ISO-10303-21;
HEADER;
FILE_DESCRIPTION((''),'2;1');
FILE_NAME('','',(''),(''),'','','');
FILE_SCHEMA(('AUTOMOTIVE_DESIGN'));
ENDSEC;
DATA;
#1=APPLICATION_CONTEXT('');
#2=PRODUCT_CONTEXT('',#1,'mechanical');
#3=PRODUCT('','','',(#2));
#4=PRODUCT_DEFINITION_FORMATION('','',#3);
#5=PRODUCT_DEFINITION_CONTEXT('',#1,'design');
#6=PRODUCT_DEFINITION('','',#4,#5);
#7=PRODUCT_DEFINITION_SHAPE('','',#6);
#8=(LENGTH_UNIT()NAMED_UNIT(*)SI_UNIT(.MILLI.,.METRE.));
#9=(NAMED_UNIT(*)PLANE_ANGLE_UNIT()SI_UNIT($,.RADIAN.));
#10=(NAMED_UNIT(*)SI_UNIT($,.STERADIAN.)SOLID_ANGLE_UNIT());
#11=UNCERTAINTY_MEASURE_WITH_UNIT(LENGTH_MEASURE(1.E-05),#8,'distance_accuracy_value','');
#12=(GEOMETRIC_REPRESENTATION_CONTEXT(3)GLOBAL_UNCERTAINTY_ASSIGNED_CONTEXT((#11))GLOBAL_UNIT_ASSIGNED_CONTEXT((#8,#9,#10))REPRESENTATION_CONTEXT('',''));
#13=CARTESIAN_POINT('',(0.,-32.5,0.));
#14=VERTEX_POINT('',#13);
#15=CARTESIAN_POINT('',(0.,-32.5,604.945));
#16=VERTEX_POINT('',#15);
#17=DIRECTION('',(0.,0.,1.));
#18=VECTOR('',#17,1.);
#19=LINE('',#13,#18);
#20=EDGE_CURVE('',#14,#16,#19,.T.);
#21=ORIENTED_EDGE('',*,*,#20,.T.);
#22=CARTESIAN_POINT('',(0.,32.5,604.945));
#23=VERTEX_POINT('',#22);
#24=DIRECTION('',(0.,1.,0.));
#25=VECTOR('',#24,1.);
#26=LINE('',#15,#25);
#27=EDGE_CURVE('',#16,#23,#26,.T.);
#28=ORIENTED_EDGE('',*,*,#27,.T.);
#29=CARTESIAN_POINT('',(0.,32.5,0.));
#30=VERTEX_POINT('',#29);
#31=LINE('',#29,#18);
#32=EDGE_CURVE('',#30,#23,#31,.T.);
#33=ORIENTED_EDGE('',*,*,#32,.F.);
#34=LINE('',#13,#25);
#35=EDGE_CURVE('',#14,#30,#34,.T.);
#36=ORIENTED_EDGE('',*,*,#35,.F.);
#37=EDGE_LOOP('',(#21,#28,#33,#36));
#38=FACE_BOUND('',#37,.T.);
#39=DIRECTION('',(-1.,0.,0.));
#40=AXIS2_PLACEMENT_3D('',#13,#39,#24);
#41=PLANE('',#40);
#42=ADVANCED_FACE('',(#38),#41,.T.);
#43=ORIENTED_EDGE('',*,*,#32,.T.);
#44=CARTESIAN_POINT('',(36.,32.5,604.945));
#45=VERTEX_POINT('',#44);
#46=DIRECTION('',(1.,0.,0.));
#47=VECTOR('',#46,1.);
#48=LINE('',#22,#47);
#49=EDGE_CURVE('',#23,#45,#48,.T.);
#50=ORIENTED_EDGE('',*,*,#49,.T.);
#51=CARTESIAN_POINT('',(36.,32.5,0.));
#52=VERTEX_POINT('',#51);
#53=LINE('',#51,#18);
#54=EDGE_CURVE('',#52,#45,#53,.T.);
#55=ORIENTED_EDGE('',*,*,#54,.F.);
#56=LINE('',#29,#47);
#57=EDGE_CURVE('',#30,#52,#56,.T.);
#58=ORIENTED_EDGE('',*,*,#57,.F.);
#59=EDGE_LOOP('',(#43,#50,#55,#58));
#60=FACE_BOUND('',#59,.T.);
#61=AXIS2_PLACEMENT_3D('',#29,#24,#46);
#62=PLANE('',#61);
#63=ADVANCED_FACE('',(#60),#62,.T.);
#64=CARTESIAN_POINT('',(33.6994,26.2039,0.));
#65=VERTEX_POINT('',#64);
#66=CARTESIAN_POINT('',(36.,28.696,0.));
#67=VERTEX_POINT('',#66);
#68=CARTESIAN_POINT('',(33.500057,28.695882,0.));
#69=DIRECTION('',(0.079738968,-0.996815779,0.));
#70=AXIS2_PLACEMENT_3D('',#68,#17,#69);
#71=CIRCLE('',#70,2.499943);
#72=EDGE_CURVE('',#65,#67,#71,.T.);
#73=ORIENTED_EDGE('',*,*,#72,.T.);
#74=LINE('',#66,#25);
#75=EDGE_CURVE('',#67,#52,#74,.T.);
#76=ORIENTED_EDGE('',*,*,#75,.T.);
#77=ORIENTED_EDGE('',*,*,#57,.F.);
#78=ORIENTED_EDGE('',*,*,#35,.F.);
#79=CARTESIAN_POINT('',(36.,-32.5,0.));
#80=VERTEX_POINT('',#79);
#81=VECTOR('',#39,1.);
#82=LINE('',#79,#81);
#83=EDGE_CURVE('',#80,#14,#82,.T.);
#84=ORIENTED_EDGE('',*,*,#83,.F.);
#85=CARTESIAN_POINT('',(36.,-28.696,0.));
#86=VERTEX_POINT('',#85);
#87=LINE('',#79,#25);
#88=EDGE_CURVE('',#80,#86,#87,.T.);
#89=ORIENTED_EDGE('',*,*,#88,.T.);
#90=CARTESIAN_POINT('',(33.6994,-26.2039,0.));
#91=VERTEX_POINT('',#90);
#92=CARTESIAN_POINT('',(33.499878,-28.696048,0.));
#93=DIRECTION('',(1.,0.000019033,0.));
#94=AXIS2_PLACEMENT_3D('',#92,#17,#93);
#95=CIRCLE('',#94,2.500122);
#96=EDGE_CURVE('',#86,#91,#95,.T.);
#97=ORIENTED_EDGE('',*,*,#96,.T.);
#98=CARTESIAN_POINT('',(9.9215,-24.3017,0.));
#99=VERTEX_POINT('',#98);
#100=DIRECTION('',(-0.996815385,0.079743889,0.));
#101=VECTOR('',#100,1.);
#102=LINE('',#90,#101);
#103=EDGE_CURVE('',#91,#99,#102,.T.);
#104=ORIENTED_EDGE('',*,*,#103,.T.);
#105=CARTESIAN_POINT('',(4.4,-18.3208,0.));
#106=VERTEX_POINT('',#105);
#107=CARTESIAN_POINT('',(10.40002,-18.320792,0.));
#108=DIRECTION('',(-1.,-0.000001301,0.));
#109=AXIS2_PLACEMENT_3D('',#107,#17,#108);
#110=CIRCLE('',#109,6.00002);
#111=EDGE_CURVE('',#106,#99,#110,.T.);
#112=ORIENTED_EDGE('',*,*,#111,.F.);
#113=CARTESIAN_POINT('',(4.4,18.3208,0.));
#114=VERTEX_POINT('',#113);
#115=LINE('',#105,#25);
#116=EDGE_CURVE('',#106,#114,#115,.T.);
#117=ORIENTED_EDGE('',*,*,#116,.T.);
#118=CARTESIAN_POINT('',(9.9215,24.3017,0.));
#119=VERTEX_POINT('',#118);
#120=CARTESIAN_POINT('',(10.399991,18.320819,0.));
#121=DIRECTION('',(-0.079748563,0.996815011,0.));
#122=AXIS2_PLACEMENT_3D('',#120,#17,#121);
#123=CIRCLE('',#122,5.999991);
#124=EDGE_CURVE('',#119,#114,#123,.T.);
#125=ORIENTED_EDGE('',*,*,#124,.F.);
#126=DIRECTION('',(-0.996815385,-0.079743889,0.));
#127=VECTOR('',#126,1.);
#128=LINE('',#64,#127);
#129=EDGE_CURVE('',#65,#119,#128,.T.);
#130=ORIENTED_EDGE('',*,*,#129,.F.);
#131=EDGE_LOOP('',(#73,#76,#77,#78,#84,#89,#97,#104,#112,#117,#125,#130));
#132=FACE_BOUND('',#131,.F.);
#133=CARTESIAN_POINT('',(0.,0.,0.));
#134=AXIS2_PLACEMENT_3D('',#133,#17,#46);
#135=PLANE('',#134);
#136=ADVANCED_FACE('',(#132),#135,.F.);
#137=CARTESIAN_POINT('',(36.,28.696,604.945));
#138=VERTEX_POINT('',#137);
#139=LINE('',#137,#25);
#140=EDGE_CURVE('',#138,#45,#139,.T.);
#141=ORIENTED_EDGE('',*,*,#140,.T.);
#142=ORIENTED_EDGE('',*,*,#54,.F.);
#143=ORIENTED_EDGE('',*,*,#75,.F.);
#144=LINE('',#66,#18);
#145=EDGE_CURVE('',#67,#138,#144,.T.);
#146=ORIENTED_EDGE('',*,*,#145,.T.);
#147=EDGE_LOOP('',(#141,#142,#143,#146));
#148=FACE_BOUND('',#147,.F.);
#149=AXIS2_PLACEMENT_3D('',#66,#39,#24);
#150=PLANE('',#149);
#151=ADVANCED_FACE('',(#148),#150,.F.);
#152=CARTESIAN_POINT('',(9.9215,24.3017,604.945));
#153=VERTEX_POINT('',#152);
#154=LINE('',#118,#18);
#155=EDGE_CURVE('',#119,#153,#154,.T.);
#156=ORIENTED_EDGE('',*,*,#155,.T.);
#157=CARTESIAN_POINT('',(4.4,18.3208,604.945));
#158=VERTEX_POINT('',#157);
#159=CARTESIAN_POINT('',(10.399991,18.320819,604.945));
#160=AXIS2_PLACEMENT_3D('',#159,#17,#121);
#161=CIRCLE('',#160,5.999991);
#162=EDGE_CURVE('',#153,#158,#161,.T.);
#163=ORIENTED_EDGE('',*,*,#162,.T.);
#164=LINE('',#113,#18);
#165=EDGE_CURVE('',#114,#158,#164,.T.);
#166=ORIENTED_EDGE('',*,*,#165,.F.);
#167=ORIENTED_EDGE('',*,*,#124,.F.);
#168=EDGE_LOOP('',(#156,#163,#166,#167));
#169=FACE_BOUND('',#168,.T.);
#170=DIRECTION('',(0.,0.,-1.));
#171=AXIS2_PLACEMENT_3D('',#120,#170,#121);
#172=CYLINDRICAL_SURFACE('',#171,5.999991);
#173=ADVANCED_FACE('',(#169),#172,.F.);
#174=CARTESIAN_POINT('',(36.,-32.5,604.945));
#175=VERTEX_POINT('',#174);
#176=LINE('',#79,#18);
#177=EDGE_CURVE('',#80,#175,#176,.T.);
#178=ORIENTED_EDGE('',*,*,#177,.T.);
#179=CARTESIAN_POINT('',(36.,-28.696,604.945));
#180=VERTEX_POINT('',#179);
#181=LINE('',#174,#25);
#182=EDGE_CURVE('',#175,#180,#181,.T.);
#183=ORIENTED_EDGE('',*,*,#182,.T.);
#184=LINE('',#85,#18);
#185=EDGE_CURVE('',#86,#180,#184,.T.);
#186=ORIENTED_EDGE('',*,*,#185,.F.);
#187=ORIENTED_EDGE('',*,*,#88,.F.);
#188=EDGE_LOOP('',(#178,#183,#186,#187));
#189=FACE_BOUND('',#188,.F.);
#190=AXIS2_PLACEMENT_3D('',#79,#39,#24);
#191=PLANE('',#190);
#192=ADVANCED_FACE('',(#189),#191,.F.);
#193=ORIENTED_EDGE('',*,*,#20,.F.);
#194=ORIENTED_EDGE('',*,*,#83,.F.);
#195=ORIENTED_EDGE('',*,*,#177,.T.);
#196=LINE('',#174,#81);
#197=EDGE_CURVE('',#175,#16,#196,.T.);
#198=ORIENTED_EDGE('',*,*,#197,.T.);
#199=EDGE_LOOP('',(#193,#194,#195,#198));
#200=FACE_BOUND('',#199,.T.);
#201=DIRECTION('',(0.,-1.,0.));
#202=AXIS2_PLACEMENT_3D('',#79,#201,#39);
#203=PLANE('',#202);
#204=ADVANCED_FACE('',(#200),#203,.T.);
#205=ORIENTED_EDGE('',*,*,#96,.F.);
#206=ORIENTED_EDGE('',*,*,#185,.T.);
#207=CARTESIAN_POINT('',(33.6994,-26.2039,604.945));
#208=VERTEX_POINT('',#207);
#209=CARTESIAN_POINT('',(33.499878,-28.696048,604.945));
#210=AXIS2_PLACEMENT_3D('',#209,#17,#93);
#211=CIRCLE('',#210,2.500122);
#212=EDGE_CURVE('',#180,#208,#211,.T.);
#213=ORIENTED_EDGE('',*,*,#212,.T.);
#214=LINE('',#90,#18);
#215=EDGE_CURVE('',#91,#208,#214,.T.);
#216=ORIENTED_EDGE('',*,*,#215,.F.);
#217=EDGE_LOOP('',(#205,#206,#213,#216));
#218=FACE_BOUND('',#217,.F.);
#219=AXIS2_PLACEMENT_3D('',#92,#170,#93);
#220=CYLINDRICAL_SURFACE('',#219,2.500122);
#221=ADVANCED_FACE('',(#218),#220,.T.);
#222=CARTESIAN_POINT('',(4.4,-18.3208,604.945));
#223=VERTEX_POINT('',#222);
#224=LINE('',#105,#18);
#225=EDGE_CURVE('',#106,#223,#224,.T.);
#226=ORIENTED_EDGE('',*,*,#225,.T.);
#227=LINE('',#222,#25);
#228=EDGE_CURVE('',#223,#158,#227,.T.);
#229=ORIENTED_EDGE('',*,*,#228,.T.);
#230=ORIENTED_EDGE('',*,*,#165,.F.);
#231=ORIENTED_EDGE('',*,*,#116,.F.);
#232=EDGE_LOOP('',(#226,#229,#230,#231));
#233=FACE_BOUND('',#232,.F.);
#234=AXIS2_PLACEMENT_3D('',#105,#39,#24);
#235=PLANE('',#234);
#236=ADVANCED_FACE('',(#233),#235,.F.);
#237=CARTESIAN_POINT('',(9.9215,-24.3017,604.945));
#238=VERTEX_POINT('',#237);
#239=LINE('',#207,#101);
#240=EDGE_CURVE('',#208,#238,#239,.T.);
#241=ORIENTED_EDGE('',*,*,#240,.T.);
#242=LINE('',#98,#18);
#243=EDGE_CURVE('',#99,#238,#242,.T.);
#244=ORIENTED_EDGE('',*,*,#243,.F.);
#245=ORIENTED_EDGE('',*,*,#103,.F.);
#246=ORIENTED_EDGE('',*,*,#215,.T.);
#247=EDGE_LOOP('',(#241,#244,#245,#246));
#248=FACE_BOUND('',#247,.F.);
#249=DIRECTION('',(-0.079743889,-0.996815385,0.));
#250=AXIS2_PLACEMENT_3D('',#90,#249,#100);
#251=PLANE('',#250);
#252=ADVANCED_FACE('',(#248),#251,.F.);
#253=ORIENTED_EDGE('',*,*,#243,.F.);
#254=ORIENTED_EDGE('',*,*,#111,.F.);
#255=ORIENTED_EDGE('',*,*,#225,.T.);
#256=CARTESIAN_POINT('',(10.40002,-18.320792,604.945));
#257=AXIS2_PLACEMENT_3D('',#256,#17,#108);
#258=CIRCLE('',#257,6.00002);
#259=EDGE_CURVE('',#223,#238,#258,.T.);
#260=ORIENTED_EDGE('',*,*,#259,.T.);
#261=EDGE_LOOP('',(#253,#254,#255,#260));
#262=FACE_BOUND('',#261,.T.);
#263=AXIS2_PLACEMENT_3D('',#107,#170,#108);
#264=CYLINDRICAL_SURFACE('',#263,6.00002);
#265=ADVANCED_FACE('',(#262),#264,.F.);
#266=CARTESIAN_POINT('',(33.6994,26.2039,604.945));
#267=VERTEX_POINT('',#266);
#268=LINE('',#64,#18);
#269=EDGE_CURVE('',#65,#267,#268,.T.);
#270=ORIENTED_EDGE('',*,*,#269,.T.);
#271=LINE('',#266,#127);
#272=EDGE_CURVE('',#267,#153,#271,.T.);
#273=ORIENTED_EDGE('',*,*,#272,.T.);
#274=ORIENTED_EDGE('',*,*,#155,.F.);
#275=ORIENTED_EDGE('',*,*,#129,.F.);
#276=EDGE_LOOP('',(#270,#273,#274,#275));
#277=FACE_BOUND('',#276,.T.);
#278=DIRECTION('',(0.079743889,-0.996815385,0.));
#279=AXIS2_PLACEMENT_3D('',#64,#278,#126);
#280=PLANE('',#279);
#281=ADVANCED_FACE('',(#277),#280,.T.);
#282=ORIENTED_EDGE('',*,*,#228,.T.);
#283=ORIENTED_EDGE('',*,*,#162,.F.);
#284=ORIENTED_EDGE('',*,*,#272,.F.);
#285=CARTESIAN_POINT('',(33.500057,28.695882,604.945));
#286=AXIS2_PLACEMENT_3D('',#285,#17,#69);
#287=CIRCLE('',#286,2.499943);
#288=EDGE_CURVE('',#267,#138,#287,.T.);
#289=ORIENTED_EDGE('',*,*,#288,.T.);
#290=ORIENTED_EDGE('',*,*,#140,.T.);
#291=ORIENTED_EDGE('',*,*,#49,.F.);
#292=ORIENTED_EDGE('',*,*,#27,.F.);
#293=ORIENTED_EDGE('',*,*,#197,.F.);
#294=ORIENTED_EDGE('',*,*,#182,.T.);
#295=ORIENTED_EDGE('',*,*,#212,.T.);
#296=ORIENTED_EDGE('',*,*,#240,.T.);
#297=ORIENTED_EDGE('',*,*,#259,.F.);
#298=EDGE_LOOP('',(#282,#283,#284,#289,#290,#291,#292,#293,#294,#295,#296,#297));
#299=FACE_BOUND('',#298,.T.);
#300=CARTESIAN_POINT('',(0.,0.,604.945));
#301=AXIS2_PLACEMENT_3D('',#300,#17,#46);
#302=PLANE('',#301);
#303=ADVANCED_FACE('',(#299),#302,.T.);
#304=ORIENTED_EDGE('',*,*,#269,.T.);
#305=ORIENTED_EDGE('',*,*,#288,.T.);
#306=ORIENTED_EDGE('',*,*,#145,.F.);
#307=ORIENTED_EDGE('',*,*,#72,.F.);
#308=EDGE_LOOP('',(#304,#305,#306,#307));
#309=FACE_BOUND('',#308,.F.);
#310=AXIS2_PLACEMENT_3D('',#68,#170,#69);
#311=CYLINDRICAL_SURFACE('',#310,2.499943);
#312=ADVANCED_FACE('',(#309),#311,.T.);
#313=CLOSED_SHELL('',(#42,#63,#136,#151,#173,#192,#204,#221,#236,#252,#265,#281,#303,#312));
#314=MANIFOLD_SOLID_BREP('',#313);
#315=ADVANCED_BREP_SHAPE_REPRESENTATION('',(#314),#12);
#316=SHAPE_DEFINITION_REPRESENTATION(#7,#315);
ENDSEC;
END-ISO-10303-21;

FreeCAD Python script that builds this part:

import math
import FreeCAD as App
import Part
import Sketcher

doc = App.newDocument("Part")
body = doc.addObject("PartDesign::Body", "Body")

# Sketch on XY plane
sketch1 = doc.addObject("Sketcher::SketchObject", "Sketch")
body.addObject(sketch1)
sketch1.AttachmentSupport = (doc.XY_Plane, [""])
sketch1.MapMode = "FlatFace"
sketch1.addGeometry(Part.LineSegment(App.Vector(0, -32.5, 0), App.Vector(36, -32.5, 0)), False)
sketch1.addGeometry(Part.LineSegment(App.Vector(36, -32.5, 0), App.Vector(36, -28.696, 0)), False)
sketch1.addGeometry(Part.ArcOfCircle(Part.Circle(App.Vector(33.5, -28.696, 0), App.Vector(0, 0, 1), 2.5), math.radians(0), math.radians(85.425348)), False)
sketch1.addGeometry(Part.LineSegment(App.Vector(33.6994, -26.2039, 0), App.Vector(9.9215, -24.3017, 0)), False)
sketch1.addGeometry(Part.ArcOfCircle(Part.Circle(App.Vector(10.4, -18.3208, 0), App.Vector(0, 0, 1), 6), math.radians(180), math.radians(265.425812)), False)
sketch1.addGeometry(Part.LineSegment(App.Vector(4.4, -18.3208, 0), App.Vector(4.4, 18.3208, 0)), False)
sketch1.addGeometry(Part.ArcOfCircle(Part.Circle(App.Vector(10.4, 18.3208, 0), App.Vector(0, 0, 1), 6.000011), math.radians(94.574188), math.radians(180)), False)
sketch1.addGeometry(Part.LineSegment(App.Vector(9.9215, 24.3017, 0), App.Vector(33.6994, 26.2039, 0)), False)
sketch1.addGeometry(Part.ArcOfCircle(Part.Circle(App.Vector(33.5, 28.696, 0), App.Vector(0, 0, 1), 2.500065), math.radians(-85.425348), math.radians(0)), False)
sketch1.addGeometry(Part.LineSegment(App.Vector(36, 28.696, 0), App.Vector(36, 32.5, 0)), False)
sketch1.addGeometry(Part.LineSegment(App.Vector(36, 32.5, 0), App.Vector(0, 32.5, 0)), False)
sketch1.addGeometry(Part.LineSegment(App.Vector(0, 32.5, 0), App.Vector(0, -32.5, 0)), False)
sketch1.addConstraint(Sketcher.Constraint("Coincident", 0, 2, 1, 1))
sketch1.addConstraint(Sketcher.Constraint("Tangent", 1, 2, 2, 1))
sketch1.addConstraint(Sketcher.Constraint("Tangent", 2, 2, 3, 1))
sketch1.addConstraint(Sketcher.Constraint("Tangent", 3, 2, 4, 2))
sketch1.addConstraint(Sketcher.Constraint("Tangent", 4, 1, 5, 1))
sketch1.addConstraint(Sketcher.Constraint("Tangent", 5, 2, 6, 2))
sketch1.addConstraint(Sketcher.Constraint("Tangent", 6, 1, 7, 1))
sketch1.addConstraint(Sketcher.Constraint("Tangent", 7, 2, 8, 1))
sketch1.addConstraint(Sketcher.Constraint("Tangent", 8, 2, 9, 1))
sketch1.addConstraint(Sketcher.Constraint("Coincident", 9, 2, 10, 1))
sketch1.addConstraint(Sketcher.Constraint("Coincident", 10, 2, 11, 1))
sketch1.addConstraint(Sketcher.Constraint("Coincident", 11, 2, 0, 1))
sketch1.addConstraint(Sketcher.Constraint("Horizontal", 0))
sketch1.addConstraint(Sketcher.Constraint("Vertical", 1))
sketch1.addConstraint(Sketcher.Constraint("Vertical", 5))
sketch1.addConstraint(Sketcher.Constraint("Vertical", 9))
sketch1.addConstraint(Sketcher.Constraint("Horizontal", 10))
sketch1.addConstraint(Sketcher.Constraint("Vertical", 11))
sketch1.addConstraint(Sketcher.Constraint("Equal", 4, 6))
sketch1.addConstraint(Sketcher.Constraint("Equal", 2, 8))
sketch1.addConstraint(Sketcher.Constraint("Symmetric", 10, 2, 11, 2, -1, 1))
sketch1.addConstraint(Sketcher.Constraint("Symmetric", 2, 3, 8, 3, -1))
sketch1.addConstraint(Sketcher.Constraint("Vertical", 3, 2, 6, 1))
sketch1.addConstraint(Sketcher.Constraint("Radius", 4, 6.0))
sketch1.addConstraint(Sketcher.Constraint("Radius", 2, 2.5))
sketch1.addConstraint(Sketcher.Constraint("DistanceX", 0, 1, 0, 2, 36.0))
sketch1.addConstraint(Sketcher.Constraint("DistanceY", 11, 2, 11, 1, 65.0))
sketch1.addConstraint(Sketcher.Constraint("DistanceX", -1, 1, 4, 1, 4.4))
sketch1.addConstraint(Sketcher.Constraint("DistanceY", 1, 1, 1, 2, 3.804))
sketch1.addConstraint(Sketcher.Constraint("DistanceY", 5, 1, 5, 2, 36.6416))
pad1 = doc.addObject("PartDesign::Pad", "Pad")
body.addObject(pad1)
pad1.Profile = sketch1
pad1.Length = 604.945

doc.recompute()
